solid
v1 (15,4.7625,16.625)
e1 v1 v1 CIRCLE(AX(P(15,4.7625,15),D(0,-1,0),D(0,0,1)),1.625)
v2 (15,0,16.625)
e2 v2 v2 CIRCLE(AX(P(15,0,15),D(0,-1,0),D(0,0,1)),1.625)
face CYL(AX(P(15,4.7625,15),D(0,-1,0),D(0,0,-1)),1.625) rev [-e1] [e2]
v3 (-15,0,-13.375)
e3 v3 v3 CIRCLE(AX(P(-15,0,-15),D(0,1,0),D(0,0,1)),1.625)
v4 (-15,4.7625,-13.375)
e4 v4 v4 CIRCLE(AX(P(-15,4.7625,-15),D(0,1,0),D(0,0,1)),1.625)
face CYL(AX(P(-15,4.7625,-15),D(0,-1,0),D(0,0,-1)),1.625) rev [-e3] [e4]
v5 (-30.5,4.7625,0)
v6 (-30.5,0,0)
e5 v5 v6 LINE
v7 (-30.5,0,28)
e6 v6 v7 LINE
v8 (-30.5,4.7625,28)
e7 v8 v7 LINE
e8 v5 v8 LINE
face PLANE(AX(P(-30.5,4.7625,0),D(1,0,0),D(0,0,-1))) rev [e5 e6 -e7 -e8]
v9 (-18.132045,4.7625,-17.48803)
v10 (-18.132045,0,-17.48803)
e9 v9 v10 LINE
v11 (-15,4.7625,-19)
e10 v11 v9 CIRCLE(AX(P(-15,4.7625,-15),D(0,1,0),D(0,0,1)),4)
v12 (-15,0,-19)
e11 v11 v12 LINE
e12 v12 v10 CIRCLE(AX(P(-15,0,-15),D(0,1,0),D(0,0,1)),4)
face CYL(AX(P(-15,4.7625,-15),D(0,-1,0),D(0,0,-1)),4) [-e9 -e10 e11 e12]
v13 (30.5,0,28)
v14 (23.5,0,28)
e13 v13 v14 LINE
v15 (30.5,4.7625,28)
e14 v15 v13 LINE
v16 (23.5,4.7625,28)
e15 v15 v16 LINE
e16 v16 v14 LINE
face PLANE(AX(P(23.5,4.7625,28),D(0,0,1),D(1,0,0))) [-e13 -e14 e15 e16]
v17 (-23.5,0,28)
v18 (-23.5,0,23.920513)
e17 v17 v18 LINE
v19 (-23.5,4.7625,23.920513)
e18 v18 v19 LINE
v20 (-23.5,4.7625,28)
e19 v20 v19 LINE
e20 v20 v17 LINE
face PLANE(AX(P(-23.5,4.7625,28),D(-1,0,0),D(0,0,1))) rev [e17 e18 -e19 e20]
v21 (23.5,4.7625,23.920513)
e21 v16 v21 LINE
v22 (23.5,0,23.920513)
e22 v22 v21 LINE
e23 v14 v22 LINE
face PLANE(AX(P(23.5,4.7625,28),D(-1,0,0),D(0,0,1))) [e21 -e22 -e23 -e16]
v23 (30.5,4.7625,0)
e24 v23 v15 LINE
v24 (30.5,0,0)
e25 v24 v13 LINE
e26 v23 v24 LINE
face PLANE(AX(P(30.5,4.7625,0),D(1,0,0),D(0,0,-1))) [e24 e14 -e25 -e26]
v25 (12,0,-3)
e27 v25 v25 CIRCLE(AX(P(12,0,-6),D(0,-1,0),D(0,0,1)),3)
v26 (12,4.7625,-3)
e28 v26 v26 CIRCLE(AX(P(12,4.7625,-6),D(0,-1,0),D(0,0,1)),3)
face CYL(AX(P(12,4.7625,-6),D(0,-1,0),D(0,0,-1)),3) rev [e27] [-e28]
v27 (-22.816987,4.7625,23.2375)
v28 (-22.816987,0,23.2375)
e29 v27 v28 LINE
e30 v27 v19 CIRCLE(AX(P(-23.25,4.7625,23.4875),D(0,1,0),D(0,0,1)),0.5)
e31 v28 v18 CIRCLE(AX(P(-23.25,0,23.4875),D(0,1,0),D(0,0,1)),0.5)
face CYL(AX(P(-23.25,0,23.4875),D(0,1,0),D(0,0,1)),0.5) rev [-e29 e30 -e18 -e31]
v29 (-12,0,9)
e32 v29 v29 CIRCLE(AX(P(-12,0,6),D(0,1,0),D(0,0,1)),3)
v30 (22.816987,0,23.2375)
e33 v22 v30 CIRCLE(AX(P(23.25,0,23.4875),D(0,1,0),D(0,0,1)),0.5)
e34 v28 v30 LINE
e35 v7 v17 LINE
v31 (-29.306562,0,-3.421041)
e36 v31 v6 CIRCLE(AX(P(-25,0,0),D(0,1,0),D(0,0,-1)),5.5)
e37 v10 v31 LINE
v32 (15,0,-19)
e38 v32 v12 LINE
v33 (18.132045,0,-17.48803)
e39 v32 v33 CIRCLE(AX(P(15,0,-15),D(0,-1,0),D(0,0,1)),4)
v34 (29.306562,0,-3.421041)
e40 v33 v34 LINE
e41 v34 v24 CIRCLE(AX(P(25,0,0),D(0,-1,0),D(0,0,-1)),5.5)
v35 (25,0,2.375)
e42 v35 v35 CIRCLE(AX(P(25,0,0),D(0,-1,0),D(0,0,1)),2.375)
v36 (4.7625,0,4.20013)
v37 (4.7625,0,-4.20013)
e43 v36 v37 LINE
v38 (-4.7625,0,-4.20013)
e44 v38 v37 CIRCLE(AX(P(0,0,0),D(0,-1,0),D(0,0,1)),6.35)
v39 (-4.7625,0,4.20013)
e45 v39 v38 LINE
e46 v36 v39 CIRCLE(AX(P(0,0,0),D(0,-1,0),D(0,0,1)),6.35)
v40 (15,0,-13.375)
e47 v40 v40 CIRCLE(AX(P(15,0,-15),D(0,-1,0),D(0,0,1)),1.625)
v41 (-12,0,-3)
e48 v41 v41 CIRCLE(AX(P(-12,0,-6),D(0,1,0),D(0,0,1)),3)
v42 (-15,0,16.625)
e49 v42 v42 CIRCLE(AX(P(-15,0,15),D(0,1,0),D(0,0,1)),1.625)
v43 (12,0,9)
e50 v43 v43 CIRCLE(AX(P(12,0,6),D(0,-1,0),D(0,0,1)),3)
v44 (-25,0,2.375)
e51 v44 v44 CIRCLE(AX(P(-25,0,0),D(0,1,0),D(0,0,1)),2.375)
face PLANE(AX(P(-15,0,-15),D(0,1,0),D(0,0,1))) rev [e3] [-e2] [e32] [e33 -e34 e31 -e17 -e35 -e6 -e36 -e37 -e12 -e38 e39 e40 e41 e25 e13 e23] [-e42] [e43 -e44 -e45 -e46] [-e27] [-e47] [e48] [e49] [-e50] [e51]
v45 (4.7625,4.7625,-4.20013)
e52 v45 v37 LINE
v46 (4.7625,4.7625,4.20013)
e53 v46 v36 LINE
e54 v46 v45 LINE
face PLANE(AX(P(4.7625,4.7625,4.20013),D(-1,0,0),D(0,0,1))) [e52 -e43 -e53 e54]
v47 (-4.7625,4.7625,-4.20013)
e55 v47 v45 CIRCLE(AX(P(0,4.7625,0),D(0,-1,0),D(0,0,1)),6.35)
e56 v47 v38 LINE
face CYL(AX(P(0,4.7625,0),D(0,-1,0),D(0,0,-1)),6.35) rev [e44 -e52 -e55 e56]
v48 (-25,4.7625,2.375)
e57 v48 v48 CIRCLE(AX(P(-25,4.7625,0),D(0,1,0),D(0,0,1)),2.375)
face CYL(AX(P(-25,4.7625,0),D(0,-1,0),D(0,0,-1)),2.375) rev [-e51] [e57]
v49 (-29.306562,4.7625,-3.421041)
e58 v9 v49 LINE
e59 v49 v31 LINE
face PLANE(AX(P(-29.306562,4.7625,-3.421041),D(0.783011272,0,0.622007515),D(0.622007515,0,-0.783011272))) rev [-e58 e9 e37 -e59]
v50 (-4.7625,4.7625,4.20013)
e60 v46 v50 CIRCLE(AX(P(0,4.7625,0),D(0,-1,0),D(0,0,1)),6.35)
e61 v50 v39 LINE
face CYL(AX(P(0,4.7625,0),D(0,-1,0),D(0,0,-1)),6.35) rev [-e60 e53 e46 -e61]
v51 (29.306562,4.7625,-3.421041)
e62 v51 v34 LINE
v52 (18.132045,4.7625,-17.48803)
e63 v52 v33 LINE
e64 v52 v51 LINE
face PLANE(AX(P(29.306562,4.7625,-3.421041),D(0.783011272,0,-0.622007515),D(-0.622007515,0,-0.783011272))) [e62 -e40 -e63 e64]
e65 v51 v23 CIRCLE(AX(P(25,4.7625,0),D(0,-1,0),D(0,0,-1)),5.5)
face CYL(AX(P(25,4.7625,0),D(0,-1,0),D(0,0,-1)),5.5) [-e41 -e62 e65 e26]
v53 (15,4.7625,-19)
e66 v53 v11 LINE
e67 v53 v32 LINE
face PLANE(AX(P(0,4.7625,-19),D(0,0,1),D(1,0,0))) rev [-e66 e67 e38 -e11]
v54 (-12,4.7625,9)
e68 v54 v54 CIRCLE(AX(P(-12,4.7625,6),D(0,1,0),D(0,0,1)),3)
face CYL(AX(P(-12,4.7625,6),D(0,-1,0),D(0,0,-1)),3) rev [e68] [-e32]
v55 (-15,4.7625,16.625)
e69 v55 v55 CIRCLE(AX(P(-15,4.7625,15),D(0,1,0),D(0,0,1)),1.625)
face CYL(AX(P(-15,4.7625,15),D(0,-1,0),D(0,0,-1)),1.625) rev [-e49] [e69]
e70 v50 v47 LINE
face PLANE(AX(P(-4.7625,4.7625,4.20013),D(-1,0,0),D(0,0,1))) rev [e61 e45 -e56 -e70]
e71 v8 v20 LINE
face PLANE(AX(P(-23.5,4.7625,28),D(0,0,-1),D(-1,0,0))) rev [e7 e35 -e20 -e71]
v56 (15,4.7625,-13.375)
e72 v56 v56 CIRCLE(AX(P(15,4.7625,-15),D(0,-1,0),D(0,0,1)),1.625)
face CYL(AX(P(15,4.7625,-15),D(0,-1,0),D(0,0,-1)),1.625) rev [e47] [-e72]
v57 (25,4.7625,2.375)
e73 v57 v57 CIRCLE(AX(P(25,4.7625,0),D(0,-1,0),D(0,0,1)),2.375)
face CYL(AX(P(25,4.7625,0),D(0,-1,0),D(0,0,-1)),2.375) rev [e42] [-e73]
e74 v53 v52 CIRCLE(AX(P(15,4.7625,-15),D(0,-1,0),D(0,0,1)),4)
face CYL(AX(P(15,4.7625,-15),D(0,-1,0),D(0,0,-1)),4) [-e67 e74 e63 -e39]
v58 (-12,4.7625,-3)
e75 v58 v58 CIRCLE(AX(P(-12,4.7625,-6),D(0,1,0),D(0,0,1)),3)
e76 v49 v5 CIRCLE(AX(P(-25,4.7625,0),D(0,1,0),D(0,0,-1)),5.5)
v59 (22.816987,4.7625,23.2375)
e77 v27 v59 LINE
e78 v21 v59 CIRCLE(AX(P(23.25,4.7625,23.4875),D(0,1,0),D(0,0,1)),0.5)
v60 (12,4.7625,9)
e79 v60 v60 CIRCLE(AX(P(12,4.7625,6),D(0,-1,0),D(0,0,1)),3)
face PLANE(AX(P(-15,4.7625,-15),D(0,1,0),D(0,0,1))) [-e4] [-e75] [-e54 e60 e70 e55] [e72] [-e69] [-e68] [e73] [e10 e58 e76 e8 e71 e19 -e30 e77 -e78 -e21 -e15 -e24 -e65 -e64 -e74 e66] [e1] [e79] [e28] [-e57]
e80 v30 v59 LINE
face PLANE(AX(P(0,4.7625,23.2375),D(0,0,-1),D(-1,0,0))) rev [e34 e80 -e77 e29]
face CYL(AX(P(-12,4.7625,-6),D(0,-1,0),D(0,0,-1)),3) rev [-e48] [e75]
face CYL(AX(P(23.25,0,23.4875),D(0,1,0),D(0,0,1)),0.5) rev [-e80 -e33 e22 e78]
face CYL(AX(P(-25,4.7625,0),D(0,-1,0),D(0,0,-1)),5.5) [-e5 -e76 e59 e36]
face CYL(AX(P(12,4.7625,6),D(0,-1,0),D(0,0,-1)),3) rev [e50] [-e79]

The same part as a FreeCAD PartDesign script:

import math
import FreeCAD as App
import Part
import Sketcher
from FreeCAD import Vector
Q = App.Units.Quantity

doc = App.newDocument("Part")
body = doc.addObject("PartDesign::Body", "Body")

# Sketch on XZ plane
sketch1 = body.newObject("Sketcher::SketchObject", "Sketch")
sketch1.AttachmentSupport = (doc.getObject("XZ_Plane"), [""])
sketch1.MapMode = "FlatFace"
sketch1.addGeometry([
    Part.LineSegment(Vector(-4.8, 4.2, 0), Vector(-4.8, -4.2, 0)),  # 0
    Part.ArcOfCircle(Part.Circle(Vector(0, 0, 0), Vector(0, 0, 1), 6.4), math.radians(-139), math.radians(-90)),  # 1
    Part.LineSegment(Vector(0, -6.3, 0), Vector(0, -19, 0)),  # 2
    Part.LineSegment(Vector(0, -19, 0), Vector(-15, -19, 0)),  # 3
    Part.ArcOfCircle(Part.Circle(Vector(-15, -15, 0), Vector(0, 0, 1), 4), math.radians(-142), math.radians(-90)),  # 4
    Part.LineSegment(Vector(-18.1, -17.5, 0), Vector(-29.3, -3.4, 0)),  # 5
    Part.ArcOfCircle(Part.Circle(Vector(-25, 0, 0), Vector(0, 0, 1), 5.5), math.radians(180), math.radians(218)),  # 6
    Part.LineSegment(Vector(-30.5, 0, 0), Vector(-30.5, 28, 0)),  # 7
    Part.LineSegment(Vector(-30.5, 28, 0), Vector(-23.5, 28, 0)),  # 8
    Part.LineSegment(Vector(-23.5, 28, 0), Vector(-23.5, 23.2, 0)),  # 9
    Part.LineSegment(Vector(-23.5, 23.2, 0), Vector(0, 23.2, 0)),  # 10
    Part.LineSegment(Vector(0, 23.2, 0), Vector(0, 6.3, 0)),  # 11
    Part.ArcOfCircle(Part.Circle(Vector(0, 0, 0), Vector(0, 0, 1), 6.4), math.radians(90), math.radians(139)),  # 12
    Part.Circle(Vector(-15, 15, 0), Vector(0, 0, 1), 1.6),  # 13
    Part.Circle(Vector(-12, 6, 0), Vector(0, 0, 1), 3),  # 14
    Part.Circle(Vector(-25, 0, 0), Vector(0, 0, 1), 2.4),  # 15
    Part.Circle(Vector(-12, -6, 0), Vector(0, 0, 1), 3),  # 16
    Part.Circle(Vector(-15, -15, 0), Vector(0, 0, 1), 1.6),  # 17
], False)
sketch1.addConstraint([
    Sketcher.Constraint("Coincident", 0, 2, 1, 1),
    Sketcher.Constraint("Coincident", 1, 2, 2, 1),
    Sketcher.Constraint("Coincident", 2, 2, 3, 1),
    Sketcher.Constraint("Tangent", 3, 2, 4, 2),
    Sketcher.Constraint("Tangent", 4, 1, 5, 1),
    Sketcher.Constraint("Tangent", 5, 2, 6, 2),
    Sketcher.Constraint("Tangent", 6, 1, 7, 1),
    Sketcher.Constraint("Coincident", 7, 2, 8, 1),
    Sketcher.Constraint("Coincident", 8, 2, 9, 1),
    Sketcher.Constraint("Coincident", 9, 2, 10, 1),
    Sketcher.Constraint("Coincident", 10, 2, 11, 1),
    Sketcher.Constraint("Coincident", 11, 2, 12, 1),
    Sketcher.Constraint("Coincident", 12, 2, 0, 1),
    Sketcher.Constraint("Vertical", 0),
    Sketcher.Constraint("Vertical", 2),
    Sketcher.Constraint("Horizontal", 3),
    Sketcher.Constraint("Vertical", 7),
    Sketcher.Constraint("Horizontal", 8),
    Sketcher.Constraint("Vertical", 9),
    Sketcher.Constraint("Horizontal", 10),
    Sketcher.Constraint("Vertical", 11),
    Sketcher.Constraint("Coincident", 1, 3, -1, 1),
    Sketcher.Constraint("Coincident", 12, 3, -1, 1),
    Sketcher.Constraint("Coincident", 15, 3, 6, 3),
    Sketcher.Constraint("Coincident", 17, 3, 4, 3),
    Sketcher.Constraint("Equal", 1, 12),
    Sketcher.Constraint("Equal", 14, 16),
    Sketcher.Constraint("Equal", 13, 17),
    Sketcher.Constraint("Symmetric", 4, 3, 13, 3, -1),
    Sketcher.Constraint("Symmetric", 14, 3, 16, 3, -1),
    Sketcher.Constraint("PointOnObject", 6, 3, -1),
    Sketcher.Constraint("PointOnObject", 1, 2, -2),
    Sketcher.Constraint("PointOnObject", 10, 2, -2),
    Sketcher.Constraint("Diameter", 14, Q("6 mm")),
    Sketcher.Constraint("Radius", 4, Q("4 mm")),
    Sketcher.Constraint("Radius", 6, Q("5.5 mm")),
    Sketcher.Constraint("Diameter", 13, Q("3.25 mm")),
    Sketcher.Constraint("Diameter", 15, Q("4.75 mm")),
    Sketcher.Constraint("DistanceX", 3, 2, 3, 1, Q("15 mm")),
    Sketcher.Constraint("DistanceX", 8, 1, 8, 2, Q("7 mm")),
    Sketcher.Constraint("DistanceY", 7, 1, 7, 2, Q("28 mm")),
    Sketcher.Constraint("Radius", 1, Q("6.35 mm")),
    Sketcher.Constraint("DistanceX", 10, 1, 10, 2, Q("23.5 mm")),
    Sketcher.Constraint("DistanceY", 4, 3, -1, 1, Q("15 mm")),
    Sketcher.Constraint("DistanceX", 14, 3, -1, 1, Q("12 mm")),
    Sketcher.Constraint("DistanceY", -1, 1, 14, 3, Q("6 mm")),
    Sketcher.Constraint("DistanceY", 9, 2, 9, 1, Q("4.7625 mm")),
    Sketcher.Constraint("DistanceY", 0, 2, 0, 1, Q("8.40026 mm")),
])
pad1 = body.newObject("PartDesign::Pad", "Pad")
pad1.Profile = sketch1
pad1.Length = 4.7625
pad1.Reversed = True
doc.recompute()

mirrored = body.newObject("PartDesign::Mirrored", "Mirrored")
mirrored.Originals = [pad1]
mirrored.MirrorPlane = (doc.getObject("YZ_Plane"), [""])
body.Tip = mirrored

# Sketch on XZ plane
sketch2 = body.newObject("Sketcher::SketchObject", "Sketch001")
sketch2.AttachmentSupport = (doc.getObject("XZ_Plane"), [""])
sketch2.MapMode = "FlatFace"
sketch2.AttachmentOffset = App.Placement(Vector(0, 0, -4.7625), App.Rotation())
sketch2.addGeometry([
    Part.Circle(Vector(-23.2, 23.5, 0), Vector(0, 0, 1), 0.5),
    Part.Circle(Vector(23.2, 23.5, 0), Vector(0, 0, 1), 0.5),
], False)
sketch2.addConstraint([
    Sketcher.Constraint("Equal", 0, 1),
    Sketcher.Constraint("Symmetric", 0, 3, 1, 3, -2),
    Sketcher.Constraint("Diameter", 0, Q("1 mm")),
    Sketcher.Constraint("DistanceX", 0, 3, 1, 3, Q("46.5 mm")),
    Sketcher.Constraint("DistanceY", -1, 1, 0, 3, Q("23.4875 mm")),
])
pocket1 = body.newObject("PartDesign::Pocket", "Pocket")
pocket1.Profile = sketch2
pocket1.Type = "ThroughAll"
pocket1.Reversed = True

doc.recompute()
